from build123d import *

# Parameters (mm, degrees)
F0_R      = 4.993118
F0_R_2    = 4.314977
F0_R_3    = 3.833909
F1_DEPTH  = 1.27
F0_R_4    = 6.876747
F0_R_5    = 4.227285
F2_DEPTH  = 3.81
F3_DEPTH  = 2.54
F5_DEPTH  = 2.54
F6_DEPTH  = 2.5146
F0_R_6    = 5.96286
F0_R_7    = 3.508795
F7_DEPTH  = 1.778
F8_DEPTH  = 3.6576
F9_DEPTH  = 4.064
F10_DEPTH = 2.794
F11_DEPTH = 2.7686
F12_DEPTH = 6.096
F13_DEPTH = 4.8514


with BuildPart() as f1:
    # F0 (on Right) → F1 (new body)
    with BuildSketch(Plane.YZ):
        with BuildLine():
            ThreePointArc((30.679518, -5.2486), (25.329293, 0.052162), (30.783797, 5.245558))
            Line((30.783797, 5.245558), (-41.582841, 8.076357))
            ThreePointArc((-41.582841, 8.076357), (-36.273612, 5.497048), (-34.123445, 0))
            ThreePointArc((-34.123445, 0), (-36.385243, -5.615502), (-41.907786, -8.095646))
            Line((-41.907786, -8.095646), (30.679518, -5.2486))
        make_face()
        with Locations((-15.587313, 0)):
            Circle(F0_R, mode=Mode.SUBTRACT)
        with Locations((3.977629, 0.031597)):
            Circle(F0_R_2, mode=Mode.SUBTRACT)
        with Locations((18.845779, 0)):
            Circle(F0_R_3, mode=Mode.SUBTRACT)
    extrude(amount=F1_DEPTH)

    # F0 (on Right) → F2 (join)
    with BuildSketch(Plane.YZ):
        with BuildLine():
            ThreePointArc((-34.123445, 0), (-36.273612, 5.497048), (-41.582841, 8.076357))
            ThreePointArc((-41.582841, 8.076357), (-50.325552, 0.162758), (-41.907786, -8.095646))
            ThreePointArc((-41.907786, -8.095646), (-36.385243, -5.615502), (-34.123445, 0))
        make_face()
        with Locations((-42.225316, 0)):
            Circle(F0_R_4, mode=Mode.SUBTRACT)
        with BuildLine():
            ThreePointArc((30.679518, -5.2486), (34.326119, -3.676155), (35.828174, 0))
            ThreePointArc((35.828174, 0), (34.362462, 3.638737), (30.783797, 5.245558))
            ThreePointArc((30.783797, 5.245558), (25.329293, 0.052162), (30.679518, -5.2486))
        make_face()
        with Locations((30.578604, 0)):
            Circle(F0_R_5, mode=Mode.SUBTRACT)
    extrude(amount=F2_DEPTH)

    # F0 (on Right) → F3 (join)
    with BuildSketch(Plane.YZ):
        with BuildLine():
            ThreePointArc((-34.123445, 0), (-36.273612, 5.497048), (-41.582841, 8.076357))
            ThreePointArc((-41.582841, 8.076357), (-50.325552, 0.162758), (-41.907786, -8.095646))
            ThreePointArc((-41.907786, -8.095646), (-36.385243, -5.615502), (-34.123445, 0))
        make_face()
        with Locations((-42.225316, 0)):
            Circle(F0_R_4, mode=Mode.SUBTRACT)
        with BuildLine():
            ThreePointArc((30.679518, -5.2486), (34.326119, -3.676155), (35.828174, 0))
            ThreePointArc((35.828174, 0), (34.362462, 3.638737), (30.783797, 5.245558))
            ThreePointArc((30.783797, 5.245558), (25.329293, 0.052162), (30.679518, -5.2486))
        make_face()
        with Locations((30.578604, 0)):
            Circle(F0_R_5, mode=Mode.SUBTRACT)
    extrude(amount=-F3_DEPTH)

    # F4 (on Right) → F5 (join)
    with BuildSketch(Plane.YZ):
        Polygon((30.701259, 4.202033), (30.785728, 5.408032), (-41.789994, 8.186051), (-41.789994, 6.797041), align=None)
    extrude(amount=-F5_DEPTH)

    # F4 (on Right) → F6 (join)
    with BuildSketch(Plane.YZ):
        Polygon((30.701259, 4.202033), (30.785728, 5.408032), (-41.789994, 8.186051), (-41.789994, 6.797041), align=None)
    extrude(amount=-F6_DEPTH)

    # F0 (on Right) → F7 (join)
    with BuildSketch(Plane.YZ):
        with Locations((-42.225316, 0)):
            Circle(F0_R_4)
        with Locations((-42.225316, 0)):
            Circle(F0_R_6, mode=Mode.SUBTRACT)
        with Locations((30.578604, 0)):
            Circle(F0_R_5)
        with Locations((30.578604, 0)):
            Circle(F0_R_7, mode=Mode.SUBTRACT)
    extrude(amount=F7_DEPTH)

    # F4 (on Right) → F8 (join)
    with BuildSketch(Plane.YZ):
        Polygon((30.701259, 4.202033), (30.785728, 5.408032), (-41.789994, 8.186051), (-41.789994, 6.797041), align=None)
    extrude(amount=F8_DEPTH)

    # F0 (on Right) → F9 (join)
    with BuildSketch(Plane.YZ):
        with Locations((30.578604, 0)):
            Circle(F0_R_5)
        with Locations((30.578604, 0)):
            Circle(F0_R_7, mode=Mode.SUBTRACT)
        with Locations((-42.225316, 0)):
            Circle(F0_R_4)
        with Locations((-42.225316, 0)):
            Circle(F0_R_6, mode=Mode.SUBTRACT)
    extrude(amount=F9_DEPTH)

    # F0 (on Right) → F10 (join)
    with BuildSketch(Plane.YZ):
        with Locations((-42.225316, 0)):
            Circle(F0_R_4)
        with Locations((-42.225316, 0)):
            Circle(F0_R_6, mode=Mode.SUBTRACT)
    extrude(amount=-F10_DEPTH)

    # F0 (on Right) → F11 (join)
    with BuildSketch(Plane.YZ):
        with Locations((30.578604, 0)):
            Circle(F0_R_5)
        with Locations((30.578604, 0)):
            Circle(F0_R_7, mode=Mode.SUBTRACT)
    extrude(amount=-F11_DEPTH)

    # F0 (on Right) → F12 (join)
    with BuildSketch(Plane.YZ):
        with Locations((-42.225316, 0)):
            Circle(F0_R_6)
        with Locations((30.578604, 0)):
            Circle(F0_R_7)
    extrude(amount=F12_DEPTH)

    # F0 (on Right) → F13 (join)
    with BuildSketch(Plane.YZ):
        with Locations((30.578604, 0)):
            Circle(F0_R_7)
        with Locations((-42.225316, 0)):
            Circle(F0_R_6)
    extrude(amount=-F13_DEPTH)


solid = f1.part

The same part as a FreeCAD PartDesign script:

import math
import FreeCAD as App
import Part
import Sketcher
from FreeCAD import Vector
Q = App.Units.Quantity

doc = App.newDocument("Part")
body = doc.addObject("PartDesign::Body", "Body")

sketch1 = body.newObject("Sketcher::SketchObject", "Sketch")
sketch1.AttachmentSupport = (doc.getObject("YZ_Plane"), [""])
sketch1.MapMode = "FlatFace"
sketch1.addGeometry([
    Part.ArcOfCircle(Part.Circle(Vector(30.578604, 0, 0), Vector(0, 0, 1), 5.24957), math.radians(87.759873), math.radians(271.101484)),
    Part.LineSegment(Vector(30.783797, 5.245558, 0), Vector(-41.582841, 8.076357, 0)),
    Part.ArcOfCircle(Part.Circle(Vector(-42.225316, 0, 0), Vector(0, 0, 1), 8.101871), math.radians(-0.000003), math.radians(85.451695)),
    Part.ArcOfCircle(Part.Circle(Vector(-42.225315, 0, 0), Vector(0, 0, 1), 8.10187), math.radians(-87.753883), math.radians(0.000003)),
    Part.LineSegment(Vector(-41.907786, -8.095646, 0), Vector(30.679518, -5.2486, 0)),
    Part.Circle(Vector(-15.587313, 0, 0), Vector(0, 0, 1), 4.993118),
    Part.Circle(Vector(3.977629, 0.031597, 0), Vector(0, 0, 1), 4.314977),
    Part.Circle(Vector(18.845779, 0, 0), Vector(0, 0, 1), 3.833909),
], False)
sketch1.addConstraint([
    Sketcher.Constraint("Tangent", 0, 1, 1, 1),
    Sketcher.Constraint("Coincident", 1, 2, 2, 2),
    Sketcher.Constraint("Tangent", 2, 1, 3, 2),
    Sketcher.Constraint("Tangent", 3, 1, 4, 1),
    Sketcher.Constraint("Coincident", 4, 2, 0, 2),
    Sketcher.Constraint("Equal", 2, 3),
    Sketcher.Constraint("PointOnObject", 0, 3, -1),
    Sketcher.Constraint("PointOnObject", 2, 3, -1),
    Sketcher.Constraint("PointOnObject", 5, 3, -1),
    Sketcher.Constraint("PointOnObject", 7, 3, -1),
    Sketcher.Constraint("PointOnObject", 2, 1, -1),
    Sketcher.Constraint("Radius", 0, 5.24957),
    Sketcher.Constraint("Radius", 2, 8.101871),
    Sketcher.Constraint("Diameter", 5, 9.986236),
    Sketcher.Constraint("Diameter", 6, 8.629954),
    Sketcher.Constraint("Diameter", 7, 7.667818),
    Sketcher.Constraint("DistanceY", 4, 2, -1, 1, 5.2486),
    Sketcher.Constraint("DistanceX", -1, 1, 6, 3, 3.977629),
    Sketcher.Constraint("DistanceX", -1, 1, 7, 3, 18.845779),
    Sketcher.Constraint("DistanceX", 1, 2, -1, 1, 41.582841),
    Sketcher.Constraint("DistanceX", -1, 1, 4, 2, 30.679518),
    Sketcher.Constraint("DistanceX", 2, 3, 0, 3, 72.803919),
    Sketcher.Constraint("DistanceX", 5, 3, 6, 3, 19.564942),
    Sketcher.Constraint("DistanceY", 6, 3, 0, 1, 5.213961),
])
pad1 = body.newObject("PartDesign::Pad", "Pad")
pad1.Profile = sketch1
pad1.Length = Q("0.05 in")

sketch2 = body.newObject("Sketcher::SketchObject", "Sketch001")
sketch2.AttachmentSupport = (doc.getObject("YZ_Plane"), [""])
sketch2.MapMode = "FlatFace"
sketch2.addGeometry([
    Part.ArcOfCircle(Part.Circle(Vector(-42.225316, 0, 0), Vector(0, 0, 1), 8.101871), math.radians(-0.000003), math.radians(85.451695)),
    Part.ArcOfCircle(Part.Circle(Vector(-42.225316, 0, 0), Vector(0, 0, 1), 8.101871), math.radians(85.451693), math.radians(272.246122)),
    Part.ArcOfCircle(Part.Circle(Vector(-42.225315, 0, 0), Vector(0, 0, 1), 8.10187), math.radians(-87.753883), math.radians(0.000003)),
    Part.Circle(Vector(-42.225316, 0, 0), Vector(0, 0, 1), 6.876747),
    Part.ArcOfCircle(Part.Circle(Vector(30.578604, 0, 0), Vector(0, 0, 1), 5.24957), math.radians(-88.898516), math.radians(-0.000003)),
    Part.ArcOfCircle(Part.Circle(Vector(30.578605, 0.000001, 0), Vector(0, 0, 1), 5.249569), math.radians(-0.00001), math.radians(87.759888)),
    Part.ArcOfCircle(Part.Circle(Vector(30.578604, 0, 0), Vector(0, 0, 1), 5.24957), math.radians(87.759873), math.radians(271.101484)),
    Part.Circle(Vector(30.578604, 0, 0), Vector(0, 0, 1), 4.227285),
], False)
sketch2.addConstraint([
    Sketcher.Constraint("Tangent", 0, 2, 1, 1),
    Sketcher.Constraint("Tangent", 1, 2, 2, 1),
    Sketcher.Constraint("Tangent", 2, 2, 0, 1),
    Sketcher.Constraint("Tangent", 4, 2, 5, 1),
    Sketcher.Constraint("Tangent", 5, 2, 6, 1),
    Sketcher.Constraint("Tangent", 6, 2, 4, 1),
    Sketcher.Constraint("Coincident", 3, 3, 0, 3),
    Sketcher.Constraint("Coincident", 7, 3, 4, 3),
    Sketcher.Constraint("PointOnObject", 0, 3, -1),
    Sketcher.Constraint("PointOnObject", 4, 3, -1),
    Sketcher.Constraint("PointOnObject", 2, 2, -1),
    Sketcher.Constraint("PointOnObject", 4, 2, -1),
    Sketcher.Constraint("Diameter", 7, 8.45457),
    Sketcher.Constraint("Radius", 0, 8.101871),
    Sketcher.Constraint("Radius", 4, 5.24957),
    Sketcher.Constraint("Diameter", 3, 13.753494),
    Sketcher.Constraint("DistanceY", 6, 2, -1, 1, 5.2486),
    Sketcher.Constraint("DistanceX", 0, 2, -1, 1, 41.582841),
    Sketcher.Constraint("DistanceX", -1, 1, 6, 2, 30.679518),
    Sketcher.Constraint("DistanceX", 2, 3, 4, 3, 72.803919),
    Sketcher.Constraint("DistanceX", 2, 3, 1, 2, 0.317529),
    Sketcher.Constraint("DistanceX", 5, 3, 5, 2, 0.205192),
])
pad2 = body.newObject("PartDesign::Pad", "Pad001")
pad2.Profile = sketch2
pad2.Length = Q("0.15 in")

sketch3 = body.newObject("Sketcher::SketchObject", "Sketch002")
sketch3.AttachmentSupport = (doc.getObject("YZ_Plane"), [""])
sketch3.MapMode = "FlatFace"
sketch3.addGeometry([
    Part.ArcOfCircle(Part.Circle(Vector(-42.225316, 0, 0), Vector(0, 0, 1), 8.101871), math.radians(-0.000003), math.radians(85.451695)),
    Part.ArcOfCircle(Part.Circle(Vector(-42.225316, 0, 0), Vector(0, 0, 1), 8.101871), math.radians(85.451693), math.radians(272.246122)),
    Part.ArcOfCircle(Part.Circle(Vector(-42.225315, 0, 0), Vector(0, 0, 1), 8.10187), math.radians(-87.753883), math.radians(0.000003)),
    Part.Circle(Vector(-42.225316, 0, 0), Vector(0, 0, 1), 6.876747),
    Part.ArcOfCircle(Part.Circle(Vector(30.578604, 0, 0), Vector(0, 0, 1), 5.24957), math.radians(-88.898516), math.radians(-0.000003)),
    Part.ArcOfCircle(Part.Circle(Vector(30.578605, 0.000001, 0), Vector(0, 0, 1), 5.249569), math.radians(-0.00001), math.radians(87.759888)),
    Part.ArcOfCircle(Part.Circle(Vector(30.578604, 0, 0), Vector(0, 0, 1), 5.24957), math.radians(87.759873), math.radians(271.101484)),
    Part.Circle(Vector(30.578604, 0, 0), Vector(0, 0, 1), 4.227285),
], False)
sketch3.addConstraint([
    Sketcher.Constraint("Tangent", 0, 2, 1, 1),
    Sketcher.Constraint("Tangent", 1, 2, 2, 1),
    Sketcher.Constraint("Tangent", 2, 2, 0, 1),
    Sketcher.Constraint("Tangent", 4, 2, 5, 1),
    Sketcher.Constraint("Tangent", 5, 2, 6, 1),
    Sketcher.Constraint("Tangent", 6, 2, 4, 1),
    Sketcher.Constraint("Coincident", 3, 3, 0, 3),
    Sketcher.Constraint("Coincident", 7, 3, 4, 3),
    Sketcher.Constraint("PointOnObject", 0, 3, -1),
    Sketcher.Constraint("PointOnObject", 4, 3, -1),
    Sketcher.Constraint("PointOnObject", 2, 2, -1),
    Sketcher.Constraint("PointOnObject", 4, 2, -1),
    Sketcher.Constraint("Diameter", 7, 8.45457),
    Sketcher.Constraint("Radius", 0, 8.101871),
    Sketcher.Constraint("Radius", 4, 5.24957),
    Sketcher.Constraint("Diameter", 3, 13.753494),
    Sketcher.Constraint("DistanceY", 6, 2, -1, 1, 5.2486),
    Sketcher.Constraint("DistanceX", 0, 2, -1, 1, 41.582841),
    Sketcher.Constraint("DistanceX", -1, 1, 6, 2, 30.679518),
    Sketcher.Constraint("DistanceX", 2, 3, 4, 3, 72.803919),
    Sketcher.Constraint("DistanceX", 2, 3, 1, 2, 0.317529),
    Sketcher.Constraint("DistanceX", 5, 3, 5, 2, 0.205192),
])
pad3 = body.newObject("PartDesign::Pad", "Pad002")
pad3.Profile = sketch3
pad3.Length = Q("0.1 in")
pad3.Reversed = True

sketch4 = body.newObject("Sketcher::SketchObject", "Sketch003")
sketch4.AttachmentSupport = (doc.getObject("YZ_Plane"), [""])
sketch4.MapMode = "FlatFace"
sketch4.addGeometry([
    Part.LineSegment(Vector(30.701259, 4.202033, 0), Vector(30.785728, 5.408032, 0)),
    Part.LineSegment(Vector(30.785728, 5.408032, 0), Vector(-41.789994, 8.186051, 0)),
    Part.LineSegment(Vector(-41.789994, 8.186051, 0), Vector(-41.789994, 6.797041, 0)),
    Part.LineSegment(Vector(-41.789994, 6.797041, 0), Vector(30.701259, 4.202033, 0)),
], False)
sketch4.addConstraint([
    Sketcher.Constraint("Coincident", 0, 2, 1, 1),
    Sketcher.Constraint("Coincident", 1, 2, 2, 1),
    Sketcher.Constraint("Coincident", 2, 2, 3, 1),
    Sketcher.Constraint("Coincident", 3, 2, 0, 1),
    Sketcher.Constraint("Vertical", 2),
    Sketcher.Constraint("DistanceY", -1, 1, 2, 2, Q("0.2676 in")),
    Sketcher.Constraint("DistanceY", 2, 2, 2, 1, 1.38901),
    Sketcher.Constraint("DistanceY", 3, 2, 0, 2, 1.205999),
    Sketcher.Constraint("Distance", 1, 72.62887),
    Sketcher.Constraint("DistanceX", -1, 1, 3, 2, 30.701259),
    Sketcher.Constraint("DistanceX", 1, 2, 0, 2, 72.575722),
    Sketcher.Constraint("DistanceX", 3, 2, 0, 2, 0.084469),
])
pad4 = body.newObject("PartDesign::Pad", "Pad003")
pad4.Profile = sketch4
pad4.Length = Q("0.1 in")
pad4.Reversed = True

sketch5 = body.newObject("Sketcher::SketchObject", "Sketch004")
sketch5.AttachmentSupport = (doc.getObject("YZ_Plane"), [""])
sketch5.MapMode = "FlatFace"
sketch5.addGeometry([
    Part.LineSegment(Vector(30.701259, 4.202033, 0), Vector(30.785728, 5.408032, 0)),
    Part.LineSegment(Vector(30.785728, 5.408032, 0), Vector(-41.789994, 8.186051, 0)),
    Part.LineSegment(Vector(-41.789994, 8.186051, 0), Vector(-41.789994, 6.797041, 0)),
    Part.LineSegment(Vector(-41.789994, 6.797041, 0), Vector(30.701259, 4.202033, 0)),
], False)
sketch5.addConstraint([
    Sketcher.Constraint("Coincident", 0, 2, 1, 1),
    Sketcher.Constraint("Coincident", 1, 2, 2, 1),
    Sketcher.Constraint("Coincident", 2, 2, 3, 1),
    Sketcher.Constraint("Coincident", 3, 2, 0, 1),
    Sketcher.Constraint("Vertical", 2),
    Sketcher.Constraint("DistanceY", -1, 1, 2, 2, Q("0.2676 in")),
    Sketcher.Constraint("DistanceY", 2, 2, 2, 1, 1.38901),
    Sketcher.Constraint("DistanceY", 3, 2, 0, 2, 1.205999),
    Sketcher.Constraint("Distance", 1, 72.62887),
    Sketcher.Constraint("DistanceX", -1, 1, 3, 2, 30.701259),
    Sketcher.Constraint("DistanceX", 1, 2, 0, 2, 72.575722),
    Sketcher.Constraint("DistanceX", 3, 2, 0, 2, 0.084469),
])
pad5 = body.newObject("PartDesign::Pad", "Pad004")
pad5.Profile = sketch5
pad5.Length = Q("0.099 in")
pad5.Reversed = True

sketch6 = body.newObject("Sketcher::SketchObject", "Sketch005")
sketch6.AttachmentSupport = (doc.getObject("YZ_Plane"), [""])
sketch6.MapMode = "FlatFace"
sketch6.addGeometry([
    Part.Circle(Vector(-42.225316, 0, 0), Vector(0, 0, 1), 6.876747),
    Part.Circle(Vector(-42.225316, 0, 0), Vector(0, 0, 1), 5.96286),
    Part.Circle(Vector(30.578604, 0, 0), Vector(0, 0, 1), 4.227285),
    Part.Circle(Vector(30.578604, 0, 0), Vector(0, 0, 1), 3.508795),
], False)
sketch6.addConstraint([
    Sketcher.Constraint("Coincident", 1, 3, 0, 3),
    Sketcher.Constraint("Coincident", 3, 3, 2, 3),
    Sketcher.Constraint("PointOnObject", 0, 3, -1),
    Sketcher.Constraint("PointOnObject", 2, 3, -1),
    Sketcher.Constraint("Diameter", 1, 11.92572),
    Sketcher.Constraint("Diameter", 2, 8.45457),
    Sketcher.Constraint("Diameter", 3, 7.01759),
    Sketcher.Constraint("Diameter", 0, 13.753494),
    Sketcher.Constraint("DistanceX", 0, 3, 2, 3, 72.80392),
    Sketcher.Constraint("DistanceX", 0, 3, -1, 1, 42.225316),
])
pad6 = body.newObject("PartDesign::Pad", "Pad005")
pad6.Profile = sketch6
pad6.Length = Q("0.07 in")

sketch7 = body.newObject("Sketcher::SketchObject", "Sketch006")
sketch7.AttachmentSupport = (doc.getObject("YZ_Plane"), [""])
sketch7.MapMode = "FlatFace"
sketch7.addGeometry([
    Part.LineSegment(Vector(30.701259, 4.202033, 0), Vector(30.785728, 5.408032, 0)),
    Part.LineSegment(Vector(30.785728, 5.408032, 0), Vector(-41.789994, 8.186051, 0)),
    Part.LineSegment(Vector(-41.789994, 8.186051, 0), Vector(-41.789994, 6.797041, 0)),
    Part.LineSegment(Vector(-41.789994, 6.797041, 0), Vector(30.701259, 4.202033, 0)),
], False)
sketch7.addConstraint([
    Sketcher.Constraint("Coincident", 0, 2, 1, 1),
    Sketcher.Constraint("Coincident", 1, 2, 2, 1),
    Sketcher.Constraint("Coincident", 2, 2, 3, 1),
    Sketcher.Constraint("Coincident", 3, 2, 0, 1),
    Sketcher.Constraint("Vertical", 2),
    Sketcher.Constraint("DistanceY", -1, 1, 2, 2, Q("0.2676 in")),
    Sketcher.Constraint("DistanceY", 2, 2, 2, 1, 1.38901),
    Sketcher.Constraint("DistanceY", 3, 2, 0, 2, 1.205999),
    Sketcher.Constraint("Distance", 1, 72.62887),
    Sketcher.Constraint("DistanceX", -1, 1, 3, 2, 30.701259),
    Sketcher.Constraint("DistanceX", 1, 2, 0, 2, 72.575722),
    Sketcher.Constraint("DistanceX", 3, 2, 0, 2, 0.084469),
])
pad7 = body.newObject("PartDesign::Pad", "Pad006")
pad7.Profile = sketch7
pad7.Length = Q("0.144 in")

sketch8 = body.newObject("Sketcher::SketchObject", "Sketch007")
sketch8.AttachmentSupport = (doc.getObject("YZ_Plane"), [""])
sketch8.MapMode = "FlatFace"
sketch8.addGeometry([
    Part.Circle(Vector(30.578604, 0, 0), Vector(0, 0, 1), 4.227285),
    Part.Circle(Vector(30.578604, 0, 0), Vector(0, 0, 1), 3.508795),
    Part.Circle(Vector(-42.225316, 0, 0), Vector(0, 0, 1), 6.876747),
    Part.Circle(Vector(-42.225316, 0, 0), Vector(0, 0, 1), 5.96286),
], False)
sketch8.addConstraint([
    Sketcher.Constraint("Coincident", 1, 3, 0, 3),
    Sketcher.Constraint("Coincident", 3, 3, 2, 3),
    Sketcher.Constraint("PointOnObject", 0, 3, -1),
    Sketcher.Constraint("PointOnObject", 2, 3, -1),
    Sketcher.Constraint("Diameter", 0, 8.45457),
    Sketcher.Constraint("Diameter", 1, 7.01759),
    Sketcher.Constraint("Diameter", 3, 11.92572),
    Sketcher.Constraint("Diameter", 2, 13.753494),
    Sketcher.Constraint("DistanceX", 2, 3, 0, 3, 72.80392),
    Sketcher.Constraint("DistanceX", -1, 1, 0, 3, 30.578604),
])
pad8 = body.newObject("PartDesign::Pad", "Pad007")
pad8.Profile = sketch8
pad8.Length = Q("0.16 in")

sketch9 = body.newObject("Sketcher::SketchObject", "Sketch008")
sketch9.AttachmentSupport = (doc.getObject("YZ_Plane"), [""])
sketch9.MapMode = "FlatFace"
sketch9.addGeometry([
    Part.Circle(Vector(-42.225316, 0, 0), Vector(0, 0, 1), 6.876747),
    Part.Circle(Vector(-42.225316, 0, 0), Vector(0, 0, 1), 5.96286),
], False)
sketch9.addConstraint([
    Sketcher.Constraint("Coincident", 1, 3, 0, 3),
    Sketcher.Constraint("PointOnObject", 0, 3, -1),
    Sketcher.Constraint("Diameter", 1, 11.92572),
    Sketcher.Constraint("Diameter", 0, 13.753494),
    Sketcher.Constraint("DistanceX", 0, 3, -1, 1, 42.225316),
])
pad9 = body.newObject("PartDesign::Pad", "Pad008")
pad9.Profile = sketch9
pad9.Length = Q("0.11 in")
pad9.Reversed = True

sketch10 = body.newObject("Sketcher::SketchObject", "Sketch009")
sketch10.AttachmentSupport = (doc.getObject("YZ_Plane"), [""])
sketch10.MapMode = "FlatFace"
sketch10.addGeometry([
    Part.Circle(Vector(30.578604, 0, 0), Vector(0, 0, 1), 4.227285),
    Part.Circle(Vector(30.578604, 0, 0), Vector(0, 0, 1), 3.508795),
], False)
sketch10.addConstraint([
    Sketcher.Constraint("Coincident", 1, 3, 0, 3),
    Sketcher.Constraint("PointOnObject", 0, 3, -1),
    Sketcher.Constraint("Diameter", 0, 8.45457),
    Sketcher.Constraint("Diameter", 1, 7.01759),
    Sketcher.Constraint("DistanceX", -1, 1, 0, 3, 30.578604),
])
pad10 = body.newObject("PartDesign::Pad", "Pad009")
pad10.Profile = sketch10
pad10.Length = Q("0.109 in")
pad10.Reversed = True

sketch11 = body.newObject("Sketcher::SketchObject", "Sketch010")
sketch11.AttachmentSupport = (doc.getObject("YZ_Plane"), [""])
sketch11.MapMode = "FlatFace"
sketch11.addGeometry([
    Part.Circle(Vector(-42.225316, 0, 0), Vector(0, 0, 1), 5.96286),
    Part.Circle(Vector(30.578604, 0, 0), Vector(0, 0, 1), 3.508795),
], False)
sketch11.addConstraint([
    Sketcher.Constraint("PointOnObject", 0, 3, -1),
    Sketcher.Constraint("PointOnObject", 1, 3, -1),
    Sketcher.Constraint("Diameter", 0, 11.92572),
    Sketcher.Constraint("Diameter", 1, 7.01759),
    Sketcher.Constraint("DistanceX", 0, 3, 1, 3, 72.80392),
    Sketcher.Constraint("DistanceX", 0, 3, -1, 1, 42.225316),
])
pad11 = body.newObject("PartDesign::Pad", "Pad010")
pad11.Profile = sketch11
pad11.Length = Q("0.24 in")

sketch12 = body.newObject("Sketcher::SketchObject", "Sketch011")
sketch12.AttachmentSupport = (doc.getObject("YZ_Plane"), [""])
sketch12.MapMode = "FlatFace"
sketch12.addGeometry([
    Part.Circle(Vector(30.578604, 0, 0), Vector(0, 0, 1), 3.508795),
    Part.Circle(Vector(-42.225316, 0, 0), Vector(0, 0, 1), 5.96286),
], False)
sketch12.addConstraint([
    Sketcher.Constraint("PointOnObject", 0, 3, -1),
    Sketcher.Constraint("PointOnObject", 1, 3, -1),
    Sketcher.Constraint("Diameter", 0, 7.01759),
    Sketcher.Constraint("Diameter", 1, 11.92572),
    Sketcher.Constraint("DistanceX", 1, 3, 0, 3, 72.80392),
    Sketcher.Constraint("DistanceX", -1, 1, 0, 3, 30.578604),
])
pad12 = body.newObject("PartDesign::Pad", "Pad011")
pad12.Profile = sketch12
pad12.Length = Q("0.191 in")
pad12.Reversed = True

doc.recompute()
